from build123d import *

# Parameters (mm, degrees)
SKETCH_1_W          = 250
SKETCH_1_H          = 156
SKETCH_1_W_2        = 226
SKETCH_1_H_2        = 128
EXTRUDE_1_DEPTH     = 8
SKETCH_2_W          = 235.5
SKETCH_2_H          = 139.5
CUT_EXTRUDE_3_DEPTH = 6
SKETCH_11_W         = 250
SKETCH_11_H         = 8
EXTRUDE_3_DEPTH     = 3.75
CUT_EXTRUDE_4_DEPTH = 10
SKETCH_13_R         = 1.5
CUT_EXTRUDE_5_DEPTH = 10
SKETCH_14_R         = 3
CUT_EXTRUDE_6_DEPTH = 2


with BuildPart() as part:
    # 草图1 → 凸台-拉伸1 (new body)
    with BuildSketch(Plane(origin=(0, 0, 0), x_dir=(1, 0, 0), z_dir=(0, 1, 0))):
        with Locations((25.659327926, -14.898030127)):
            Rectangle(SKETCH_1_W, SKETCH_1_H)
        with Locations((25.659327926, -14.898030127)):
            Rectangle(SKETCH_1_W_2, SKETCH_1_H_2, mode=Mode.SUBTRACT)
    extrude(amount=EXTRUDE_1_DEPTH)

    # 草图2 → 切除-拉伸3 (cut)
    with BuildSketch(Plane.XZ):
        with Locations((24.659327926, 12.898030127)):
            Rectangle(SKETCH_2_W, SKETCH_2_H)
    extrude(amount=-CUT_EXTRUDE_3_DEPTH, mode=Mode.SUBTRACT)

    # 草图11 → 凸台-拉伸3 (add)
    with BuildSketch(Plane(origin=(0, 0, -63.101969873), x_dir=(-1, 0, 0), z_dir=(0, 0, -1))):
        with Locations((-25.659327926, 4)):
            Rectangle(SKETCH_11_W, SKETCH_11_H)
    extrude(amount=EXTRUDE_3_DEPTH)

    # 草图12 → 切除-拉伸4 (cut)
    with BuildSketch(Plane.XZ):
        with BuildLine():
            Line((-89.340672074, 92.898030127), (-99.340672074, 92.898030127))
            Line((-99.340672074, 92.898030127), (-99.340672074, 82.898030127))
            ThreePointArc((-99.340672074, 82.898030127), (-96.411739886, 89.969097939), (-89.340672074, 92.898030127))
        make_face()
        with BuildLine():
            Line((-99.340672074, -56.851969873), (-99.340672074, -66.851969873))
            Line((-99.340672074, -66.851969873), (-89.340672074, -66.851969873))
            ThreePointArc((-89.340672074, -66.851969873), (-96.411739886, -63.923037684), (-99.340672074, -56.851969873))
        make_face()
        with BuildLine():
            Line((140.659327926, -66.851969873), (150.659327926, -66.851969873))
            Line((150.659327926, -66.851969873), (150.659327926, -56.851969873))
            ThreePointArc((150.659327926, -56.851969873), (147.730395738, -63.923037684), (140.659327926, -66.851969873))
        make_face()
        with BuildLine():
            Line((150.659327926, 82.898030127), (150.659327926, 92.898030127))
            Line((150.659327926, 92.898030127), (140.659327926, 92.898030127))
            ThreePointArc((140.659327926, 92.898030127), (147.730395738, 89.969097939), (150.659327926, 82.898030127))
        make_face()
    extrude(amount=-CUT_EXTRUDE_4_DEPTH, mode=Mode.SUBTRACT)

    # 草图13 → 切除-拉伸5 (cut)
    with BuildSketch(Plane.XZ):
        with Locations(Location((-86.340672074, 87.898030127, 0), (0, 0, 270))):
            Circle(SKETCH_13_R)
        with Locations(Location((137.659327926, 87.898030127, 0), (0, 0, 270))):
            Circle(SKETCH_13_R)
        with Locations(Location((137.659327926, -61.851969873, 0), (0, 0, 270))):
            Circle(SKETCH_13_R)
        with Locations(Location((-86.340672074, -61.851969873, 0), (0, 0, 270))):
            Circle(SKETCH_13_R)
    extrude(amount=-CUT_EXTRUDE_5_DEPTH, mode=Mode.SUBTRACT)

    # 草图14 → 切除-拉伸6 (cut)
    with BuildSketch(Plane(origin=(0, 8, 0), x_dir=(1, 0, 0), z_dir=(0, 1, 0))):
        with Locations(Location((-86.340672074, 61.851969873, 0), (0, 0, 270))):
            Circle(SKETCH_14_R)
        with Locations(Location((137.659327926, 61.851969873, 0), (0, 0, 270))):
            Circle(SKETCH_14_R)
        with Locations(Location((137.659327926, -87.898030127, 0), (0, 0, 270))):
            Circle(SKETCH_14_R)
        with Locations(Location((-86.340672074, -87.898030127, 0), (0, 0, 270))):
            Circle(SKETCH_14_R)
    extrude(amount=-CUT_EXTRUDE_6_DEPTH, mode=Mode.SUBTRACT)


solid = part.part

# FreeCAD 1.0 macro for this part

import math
import FreeCAD as App
import Part
import Sketcher
from FreeCAD import Vector


def add_polygon(sketch, points):
    """Adds a closed chain of lines whose ends are joined by coincident constraints."""
    first, n = sketch.GeometryCount, len(points)
    for a, b in zip(points, points[1:] + points[:1]):
        sketch.addGeometry(Part.LineSegment(App.Vector(*a, 0), App.Vector(*b, 0)), False)
    for i in range(n):
        sketch.addConstraint(Sketcher.Constraint("Coincident", first + i, 2, first + (i + 1) % n, 1))

doc = App.newDocument("Part")
body = doc.addObject("PartDesign::Body", "Body")

# Sketch on XZ plane
sketch1 = body.newObject("Sketcher::SketchObject", "Sketch")
sketch1.AttachmentSupport = (doc.getObject("XZ_Plane"), [""])
sketch1.MapMode = "FlatFace"
add_polygon(sketch1, [(-99.340672, -63.10197), (-99.340672, 92.89803), (150.659328, 92.89803), (150.659328, -63.10197)])  # lines 0-3
add_polygon(sketch1, [(138.659328, 78.89803), (-87.340672, 78.89803), (-87.340672, -49.10197), (138.659328, -49.10197)])  # lines 4-7
sketch1.addConstraint(Sketcher.Constraint("Vertical", 0))
sketch1.addConstraint(Sketcher.Constraint("Horizontal", 1))
sketch1.addConstraint(Sketcher.Constraint("Vertical", 2))
sketch1.addConstraint(Sketcher.Constraint("Horizontal", 3))
sketch1.addConstraint(Sketcher.Constraint("Horizontal", 4))
sketch1.addConstraint(Sketcher.Constraint("Vertical", 5))
sketch1.addConstraint(Sketcher.Constraint("Horizontal", 6))
sketch1.addConstraint(Sketcher.Constraint("Vertical", 7))
sketch1.addConstraint(Sketcher.Constraint("DistanceX", 1, 1, 1, 2, 250.0))
sketch1.addConstraint(Sketcher.Constraint("DistanceX", 4, 2, 4, 1, 226.0))
sketch1.addConstraint(Sketcher.Constraint("DistanceY", 0, 1, 0, 2, 156.0))
sketch1.addConstraint(Sketcher.Constraint("DistanceY", 5, 2, 5, 1, 128.0))
sketch1.addConstraint(Sketcher.Constraint("DistanceX", 0, 2, 4, 2, 12.0))
sketch1.addConstraint(Sketcher.Constraint("DistanceY", 4, 2, 0, 2, 14.0))
sketch1.addConstraint(Sketcher.Constraint("DistanceY", -1, 1, 0, 2, 92.89803))
sketch1.addConstraint(Sketcher.Constraint("DistanceX", 0, 2, -1, 1, 99.340672))
pad1 = body.newObject("PartDesign::Pad", "Pad")
pad1.Profile = sketch1
pad1.Length = 8
pad1.Reversed = True

# Sketch on XZ plane
sketch2 = body.newObject("Sketcher::SketchObject", "Sketch001")
sketch2.AttachmentSupport = (doc.getObject("XZ_Plane"), [""])
sketch2.MapMode = "FlatFace"
add_polygon(sketch2, [(-93.090672, 82.64803), (-93.090672, -56.85197), (142.409328, -56.85197), (142.409328, 82.64803)])  # lines 0-3
sketch2.addConstraint(Sketcher.Constraint("Vertical", 0))
sketch2.addConstraint(Sketcher.Constraint("Horizontal", 1))
sketch2.addConstraint(Sketcher.Constraint("Vertical", 2))
sketch2.addConstraint(Sketcher.Constraint("Horizontal", 3))
sketch2.addConstraint(Sketcher.Constraint("DistanceX", 1, 1, 1, 2, 235.5))
sketch2.addConstraint(Sketcher.Constraint("DistanceY", 0, 2, 0, 1, 139.5))
sketch2.addConstraint(Sketcher.Constraint("DistanceY", 0, 2, -1, 1, 56.85197))
sketch2.addConstraint(Sketcher.Constraint("DistanceX", 0, 2, -1, 1, 93.090672))
pocket1 = body.newObject("PartDesign::Pocket", "Pocket")
pocket1.Profile = sketch2
pocket1.Length = 6

# Sketch on XY plane
sketch3 = body.newObject("Sketcher::SketchObject", "Sketch002")
sketch3.AttachmentSupport = (doc.getObject("XY_Plane"), [""])
sketch3.MapMode = "FlatFace"
sketch3.AttachmentOffset = App.Placement(Vector(0, 0, -63.10197), App.Rotation())
add_polygon(sketch3, [(150.659328, 8), (150.659328, 0), (-99.340672, 0), (-99.340672, 8)])  # lines 0-3
sketch3.addConstraint(Sketcher.Constraint("Vertical", 0))
sketch3.addConstraint(Sketcher.Constraint("Horizontal", 1))
sketch3.addConstraint(Sketcher.Constraint("Vertical", 2))
sketch3.addConstraint(Sketcher.Constraint("Horizontal", 3))
sketch3.addConstraint(Sketcher.Constraint("PointOnObject", 0, 2, -1))
sketch3.addConstraint(Sketcher.Constraint("DistanceX", 1, 2, 1, 1, 250.0))
sketch3.addConstraint(Sketcher.Constraint("DistanceY", 0, 2, 0, 1, 8.0))
sketch3.addConstraint(Sketcher.Constraint("DistanceX", -1, 1, 0, 2, 150.659328))
pad2 = body.newObject("PartDesign::Pad", "Pad001")
pad2.Profile = sketch3
pad2.Length = 3.75
pad2.Reversed = True

# Sketch on XZ plane
sketch4 = body.newObject("Sketcher::SketchObject", "Sketch003")
sketch4.AttachmentSupport = (doc.getObject("XZ_Plane"), [""])
sketch4.MapMode = "FlatFace"
sketch4.addGeometry(Part.LineSegment(Vector(-89.340672, 92.89803, 0), Vector(-99.340672, 92.89803, 0)), False)
sketch4.addGeometry(Part.LineSegment(Vector(-99.340672, 92.89803, 0), Vector(-99.340672, 82.89803, 0)), False)
sketch4.addGeometry(Part.ArcOfCircle(Part.Circle(Vector(-89.340672, 82.89803, 0), Vector(0, 0, 1), 10), math.radians(90), math.radians(180)), False)
sketch4.addGeometry(Part.LineSegment(Vector(-99.340672, -56.85197, 0), Vector(-99.340672, -66.85197, 0)), False)
sketch4.addGeometry(Part.LineSegment(Vector(-99.340672, -66.85197, 0), Vector(-89.340672, -66.85197, 0)), False)
sketch4.addGeometry(Part.ArcOfCircle(Part.Circle(Vector(-89.340672, -56.85197, 0), Vector(0, 0, 1), 10), math.radians(-180), math.radians(-90)), False)
sketch4.addGeometry(Part.LineSegment(Vector(140.659328, -66.85197, 0), Vector(150.659328, -66.85197, 0)), False)
sketch4.addGeometry(Part.LineSegment(Vector(150.659328, -66.85197, 0), Vector(150.659328, -56.85197, 0)), False)
sketch4.addGeometry(Part.ArcOfCircle(Part.Circle(Vector(140.659328, -56.85197, 0), Vector(0, 0, 1), 10), math.radians(-90), math.radians(0)), False)
sketch4.addGeometry(Part.LineSegment(Vector(150.659328, 82.89803, 0), Vector(150.659328, 92.89803, 0)), False)
sketch4.addGeometry(Part.LineSegment(Vector(150.659328, 92.89803, 0), Vector(140.659328, 92.89803, 0)), False)
sketch4.addGeometry(Part.ArcOfCircle(Part.Circle(Vector(140.659328, 82.89803, 0), Vector(0, 0, 1), 10), math.radians(0), math.radians(90)), False)
sketch4.addConstraint(Sketcher.Constraint("Coincident", 0, 2, 1, 1))
sketch4.addConstraint(Sketcher.Constraint("Tangent", 1, 2, 2, 2))
sketch4.addConstraint(Sketcher.Constraint("Tangent", 2, 1, 0, 1))
sketch4.addConstraint(Sketcher.Constraint("Coincident", 3, 2, 4, 1))
sketch4.addConstraint(Sketcher.Constraint("Tangent", 4, 2, 5, 2))
sketch4.addConstraint(Sketcher.Constraint("Tangent", 5, 1, 3, 1))
sketch4.addConstraint(Sketcher.Constraint("Coincident", 6, 2, 7, 1))
sketch4.addConstraint(Sketcher.Constraint("Tangent", 7, 2, 8, 2))
sketch4.addConstraint(Sketcher.Constraint("Tangent", 8, 1, 6, 1))
sketch4.addConstraint(Sketcher.Constraint("Coincident", 9, 2, 10, 1))
sketch4.addConstraint(Sketcher.Constraint("Tangent", 10, 2, 11, 2))
sketch4.addConstraint(Sketcher.Constraint("Tangent", 11, 1, 9, 1))
sketch4.addConstraint(Sketcher.Constraint("Horizontal", 0))
sketch4.addConstraint(Sketcher.Constraint("Vertical", 1))
sketch4.addConstraint(Sketcher.Constraint("Vertical", 3))
sketch4.addConstraint(Sketcher.Constraint("Horizontal", 4))
sketch4.addConstraint(Sketcher.Constraint("Horizontal", 6))
sketch4.addConstraint(Sketcher.Constraint("Vertical", 7))
sketch4.addConstraint(Sketcher.Constraint("Vertical", 9))
sketch4.addConstraint(Sketcher.Constraint("Horizontal", 10))
sketch4.addConstraint(Sketcher.Constraint("Equal", 2, 5))
sketch4.addConstraint(Sketcher.Constraint("Equal", 5, 8))
sketch4.addConstraint(Sketcher.Constraint("Equal", 8, 11))
sketch4.addConstraint(Sketcher.Constraint("Horizontal", 5, 3, 8, 3))
sketch4.addConstraint(Sketcher.Constraint("Horizontal", 2, 3, 11, 3))
sketch4.addConstraint(Sketcher.Constraint("Vertical", 2, 3, 5, 3))
sketch4.addConstraint(Sketcher.Constraint("Vertical", 8, 3, 11, 3))
sketch4.addConstraint(Sketcher.Constraint("Radius", 2, 10.0))
sketch4.addConstraint(Sketcher.Constraint("DistanceX", 5, 3, 8, 3, 230.0))
sketch4.addConstraint(Sketcher.Constraint("DistanceY", 5, 3, 2, 3, 139.75))
sketch4.addConstraint(Sketcher.Constraint("DistanceY", -1, 1, 2, 3, 82.89803))
sketch4.addConstraint(Sketcher.Constraint("DistanceX", 2, 3, -1, 1, 89.340672))
pocket2 = body.newObject("PartDesign::Pocket", "Pocket001")
pocket2.Profile = sketch4
pocket2.Length = 10

# Sketch on XZ plane
sketch5 = body.newObject("Sketcher::SketchObject", "Sketch004")
sketch5.AttachmentSupport = (doc.getObject("XZ_Plane"), [""])
sketch5.MapMode = "FlatFace"
sketch5.addGeometry(Part.Circle(Vector(-86.340672, 87.89803, 0), Vector(0, 0, 1), 1.5), False)
sketch5.addGeometry(Part.Circle(Vector(137.659328, 87.89803, 0), Vector(0, 0, 1), 1.5), False)
sketch5.addGeometry(Part.Circle(Vector(137.659328, -61.85197, 0), Vector(0, 0, 1), 1.5), False)
sketch5.addGeometry(Part.Circle(Vector(-86.340672, -61.85197, 0), Vector(0, 0, 1), 1.5), False)
sketch5.addConstraint(Sketcher.Constraint("Equal", 0, 1))
sketch5.addConstraint(Sketcher.Constraint("Equal", 1, 2))
sketch5.addConstraint(Sketcher.Constraint("Equal", 2, 3))
sketch5.addConstraint(Sketcher.Constraint("Horizontal", 0, 3, 1, 3))
sketch5.addConstraint(Sketcher.Constraint("Horizontal", 2, 3, 3, 3))
sketch5.addConstraint(Sketcher.Constraint("Vertical", 1, 3, 2, 3))
sketch5.addConstraint(Sketcher.Constraint("Vertical", 0, 3, 3, 3))
sketch5.addConstraint(Sketcher.Constraint("Diameter", 0, 3.0))
sketch5.addConstraint(Sketcher.Constraint("DistanceX", 0, 3, 1, 3, 224.0))
sketch5.addConstraint(Sketcher.Constraint("DistanceY", 2, 3, 1, 3, 149.75))
sketch5.addConstraint(Sketcher.Constraint("DistanceY", -1, 1, 0, 3, 87.89803))
sketch5.addConstraint(Sketcher.Constraint("DistanceX", 0, 3, -1, 1, 86.340672))
pocket3 = body.newObject("PartDesign::Pocket", "Pocket002")
pocket3.Profile = sketch5
pocket3.Length = 10

# Sketch on XZ plane
sketch6 = body.newObject("Sketcher::SketchObject", "Sketch005")
sketch6.AttachmentSupport = (doc.getObject("XZ_Plane"), [""])
sketch6.MapMode = "FlatFace"
sketch6.AttachmentOffset = App.Placement(Vector(0, 0, -8), App.Rotation())
sketch6.addGeometry(Part.Circle(Vector(-86.340672, -61.85197, 0), Vector(0, 0, 1), 3), False)
sketch6.addGeometry(Part.Circle(Vector(137.659328, -61.85197, 0), Vector(0, 0, 1), 3), False)
sketch6.addGeometry(Part.Circle(Vector(137.659328, 87.89803, 0), Vector(0, 0, 1), 3), False)
sketch6.addGeometry(Part.Circle(Vector(-86.340672, 87.89803, 0), Vector(0, 0, 1), 3), False)
sketch6.addConstraint(Sketcher.Constraint("Equal", 0, 1))
sketch6.addConstraint(Sketcher.Constraint("Equal", 1, 2))
sketch6.addConstraint(Sketcher.Constraint("Equal", 2, 3))
sketch6.addConstraint(Sketcher.Constraint("Horizontal", 0, 3, 1, 3))
sketch6.addConstraint(Sketcher.Constraint("Horizontal", 2, 3, 3, 3))
sketch6.addConstraint(Sketcher.Constraint("Vertical", 1, 3, 2, 3))
sketch6.addConstraint(Sketcher.Constraint("Vertical", 0, 3, 3, 3))
sketch6.addConstraint(Sketcher.Constraint("Diameter", 0, 6.0))
sketch6.addConstraint(Sketcher.Constraint("DistanceX", 0, 3, 1, 3, 224.0))
sketch6.addConstraint(Sketcher.Constraint("DistanceY", 1, 3, 2, 3, 149.75))
sketch6.addConstraint(Sketcher.Constraint("DistanceY", 0, 3, -1, 1, 61.85197))
sketch6.addConstraint(Sketcher.Constraint("DistanceX", 0, 3, -1, 1, 86.340672))
pocket4 = body.newObject("PartDesign::Pocket", "Pocket003")
pocket4.Profile = sketch6
pocket4.Length = 2
pocket4.Reversed = True

doc.recompute()
